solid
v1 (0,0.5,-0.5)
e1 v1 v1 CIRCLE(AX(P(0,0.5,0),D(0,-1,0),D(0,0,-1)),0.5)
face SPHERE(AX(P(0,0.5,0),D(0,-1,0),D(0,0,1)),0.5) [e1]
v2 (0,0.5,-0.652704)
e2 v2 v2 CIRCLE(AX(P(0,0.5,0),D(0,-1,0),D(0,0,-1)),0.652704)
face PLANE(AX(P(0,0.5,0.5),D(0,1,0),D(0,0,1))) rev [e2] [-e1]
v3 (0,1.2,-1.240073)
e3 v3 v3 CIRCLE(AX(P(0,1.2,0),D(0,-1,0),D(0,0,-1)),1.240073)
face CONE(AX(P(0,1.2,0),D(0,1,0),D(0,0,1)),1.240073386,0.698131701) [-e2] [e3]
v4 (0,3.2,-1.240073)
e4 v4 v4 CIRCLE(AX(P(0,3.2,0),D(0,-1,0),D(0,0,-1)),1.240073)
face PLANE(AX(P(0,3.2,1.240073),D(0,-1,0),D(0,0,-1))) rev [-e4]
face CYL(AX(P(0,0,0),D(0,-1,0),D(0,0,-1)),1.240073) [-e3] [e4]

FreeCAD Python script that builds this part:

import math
import FreeCAD as App
import Part
import Sketcher
from FreeCAD import Vector
Q = App.Units.Quantity

doc = App.newDocument("Part")
body = doc.addObject("PartDesign::Body", "Body")

sketch1 = body.newObject("Sketcher::SketchObject", "Sketch")
sketch1.AttachmentSupport = (doc.getObject("YZ_Plane"), [""])
sketch1.MapMode = "FlatFace"
sketch1.addGeometry([
    Part.LineSegment(Vector(0.5, 0.65, 0), Vector(0.5, 0.5, 0)),
    Part.ArcOfCircle(Part.Circle(Vector(0.5, 0, 0), Vector(0, 0, 1), 0.5), math.radians(90), math.radians(180)),
    Part.LineSegment(Vector(0, 0, 0), Vector(3.2, 0, 0)),
    Part.LineSegment(Vector(3.2, 0, 0), Vector(3.2, 1.24, 0)),
    Part.LineSegment(Vector(3.2, 1.24, 0), Vector(1.2, 1.24, 0)),
    Part.LineSegment(Vector(1.2, 1.24, 0), Vector(0.5, 0.65, 0)),
], False)
sketch1.addConstraint([
    Sketcher.Constraint("Coincident", 0, 2, 1, 1),
    Sketcher.Constraint("Coincident", 1, 2, 2, 1),
    Sketcher.Constraint("Coincident", 2, 2, 3, 1),
    Sketcher.Constraint("Coincident", 3, 2, 4, 1),
    Sketcher.Constraint("Coincident", 4, 2, 5, 1),
    Sketcher.Constraint("Coincident", 5, 2, 0, 1),
    Sketcher.Constraint("Vertical", 0),
    Sketcher.Constraint("Horizontal", 2),
    Sketcher.Constraint("Vertical", 3),
    Sketcher.Constraint("Horizontal", 4),
    Sketcher.Constraint("Coincident", 1, 2, -1, 1),
    Sketcher.Constraint("PointOnObject", 1, 3, -1),
    Sketcher.Constraint("Vertical", 1, 3, 0, 2),
    Sketcher.Constraint("Radius", 1, 0.5),
    Sketcher.Constraint("DistanceX", 4, 2, 4, 1, 2.0),
    Sketcher.Constraint("Angle", 5, Q("-140 deg")),
    Sketcher.Constraint("DistanceX", 2, 1, 2, 2, 3.2),
    Sketcher.Constraint("DistanceY", 0, 2, 0, 1, 0.152704),
])
revolution = body.newObject("PartDesign::Revolution", "Revolution")
revolution.Profile = sketch1
revolution.ReferenceAxis = (sketch1, ["H_Axis"])
revolution.Angle = 360

doc.recompute()
